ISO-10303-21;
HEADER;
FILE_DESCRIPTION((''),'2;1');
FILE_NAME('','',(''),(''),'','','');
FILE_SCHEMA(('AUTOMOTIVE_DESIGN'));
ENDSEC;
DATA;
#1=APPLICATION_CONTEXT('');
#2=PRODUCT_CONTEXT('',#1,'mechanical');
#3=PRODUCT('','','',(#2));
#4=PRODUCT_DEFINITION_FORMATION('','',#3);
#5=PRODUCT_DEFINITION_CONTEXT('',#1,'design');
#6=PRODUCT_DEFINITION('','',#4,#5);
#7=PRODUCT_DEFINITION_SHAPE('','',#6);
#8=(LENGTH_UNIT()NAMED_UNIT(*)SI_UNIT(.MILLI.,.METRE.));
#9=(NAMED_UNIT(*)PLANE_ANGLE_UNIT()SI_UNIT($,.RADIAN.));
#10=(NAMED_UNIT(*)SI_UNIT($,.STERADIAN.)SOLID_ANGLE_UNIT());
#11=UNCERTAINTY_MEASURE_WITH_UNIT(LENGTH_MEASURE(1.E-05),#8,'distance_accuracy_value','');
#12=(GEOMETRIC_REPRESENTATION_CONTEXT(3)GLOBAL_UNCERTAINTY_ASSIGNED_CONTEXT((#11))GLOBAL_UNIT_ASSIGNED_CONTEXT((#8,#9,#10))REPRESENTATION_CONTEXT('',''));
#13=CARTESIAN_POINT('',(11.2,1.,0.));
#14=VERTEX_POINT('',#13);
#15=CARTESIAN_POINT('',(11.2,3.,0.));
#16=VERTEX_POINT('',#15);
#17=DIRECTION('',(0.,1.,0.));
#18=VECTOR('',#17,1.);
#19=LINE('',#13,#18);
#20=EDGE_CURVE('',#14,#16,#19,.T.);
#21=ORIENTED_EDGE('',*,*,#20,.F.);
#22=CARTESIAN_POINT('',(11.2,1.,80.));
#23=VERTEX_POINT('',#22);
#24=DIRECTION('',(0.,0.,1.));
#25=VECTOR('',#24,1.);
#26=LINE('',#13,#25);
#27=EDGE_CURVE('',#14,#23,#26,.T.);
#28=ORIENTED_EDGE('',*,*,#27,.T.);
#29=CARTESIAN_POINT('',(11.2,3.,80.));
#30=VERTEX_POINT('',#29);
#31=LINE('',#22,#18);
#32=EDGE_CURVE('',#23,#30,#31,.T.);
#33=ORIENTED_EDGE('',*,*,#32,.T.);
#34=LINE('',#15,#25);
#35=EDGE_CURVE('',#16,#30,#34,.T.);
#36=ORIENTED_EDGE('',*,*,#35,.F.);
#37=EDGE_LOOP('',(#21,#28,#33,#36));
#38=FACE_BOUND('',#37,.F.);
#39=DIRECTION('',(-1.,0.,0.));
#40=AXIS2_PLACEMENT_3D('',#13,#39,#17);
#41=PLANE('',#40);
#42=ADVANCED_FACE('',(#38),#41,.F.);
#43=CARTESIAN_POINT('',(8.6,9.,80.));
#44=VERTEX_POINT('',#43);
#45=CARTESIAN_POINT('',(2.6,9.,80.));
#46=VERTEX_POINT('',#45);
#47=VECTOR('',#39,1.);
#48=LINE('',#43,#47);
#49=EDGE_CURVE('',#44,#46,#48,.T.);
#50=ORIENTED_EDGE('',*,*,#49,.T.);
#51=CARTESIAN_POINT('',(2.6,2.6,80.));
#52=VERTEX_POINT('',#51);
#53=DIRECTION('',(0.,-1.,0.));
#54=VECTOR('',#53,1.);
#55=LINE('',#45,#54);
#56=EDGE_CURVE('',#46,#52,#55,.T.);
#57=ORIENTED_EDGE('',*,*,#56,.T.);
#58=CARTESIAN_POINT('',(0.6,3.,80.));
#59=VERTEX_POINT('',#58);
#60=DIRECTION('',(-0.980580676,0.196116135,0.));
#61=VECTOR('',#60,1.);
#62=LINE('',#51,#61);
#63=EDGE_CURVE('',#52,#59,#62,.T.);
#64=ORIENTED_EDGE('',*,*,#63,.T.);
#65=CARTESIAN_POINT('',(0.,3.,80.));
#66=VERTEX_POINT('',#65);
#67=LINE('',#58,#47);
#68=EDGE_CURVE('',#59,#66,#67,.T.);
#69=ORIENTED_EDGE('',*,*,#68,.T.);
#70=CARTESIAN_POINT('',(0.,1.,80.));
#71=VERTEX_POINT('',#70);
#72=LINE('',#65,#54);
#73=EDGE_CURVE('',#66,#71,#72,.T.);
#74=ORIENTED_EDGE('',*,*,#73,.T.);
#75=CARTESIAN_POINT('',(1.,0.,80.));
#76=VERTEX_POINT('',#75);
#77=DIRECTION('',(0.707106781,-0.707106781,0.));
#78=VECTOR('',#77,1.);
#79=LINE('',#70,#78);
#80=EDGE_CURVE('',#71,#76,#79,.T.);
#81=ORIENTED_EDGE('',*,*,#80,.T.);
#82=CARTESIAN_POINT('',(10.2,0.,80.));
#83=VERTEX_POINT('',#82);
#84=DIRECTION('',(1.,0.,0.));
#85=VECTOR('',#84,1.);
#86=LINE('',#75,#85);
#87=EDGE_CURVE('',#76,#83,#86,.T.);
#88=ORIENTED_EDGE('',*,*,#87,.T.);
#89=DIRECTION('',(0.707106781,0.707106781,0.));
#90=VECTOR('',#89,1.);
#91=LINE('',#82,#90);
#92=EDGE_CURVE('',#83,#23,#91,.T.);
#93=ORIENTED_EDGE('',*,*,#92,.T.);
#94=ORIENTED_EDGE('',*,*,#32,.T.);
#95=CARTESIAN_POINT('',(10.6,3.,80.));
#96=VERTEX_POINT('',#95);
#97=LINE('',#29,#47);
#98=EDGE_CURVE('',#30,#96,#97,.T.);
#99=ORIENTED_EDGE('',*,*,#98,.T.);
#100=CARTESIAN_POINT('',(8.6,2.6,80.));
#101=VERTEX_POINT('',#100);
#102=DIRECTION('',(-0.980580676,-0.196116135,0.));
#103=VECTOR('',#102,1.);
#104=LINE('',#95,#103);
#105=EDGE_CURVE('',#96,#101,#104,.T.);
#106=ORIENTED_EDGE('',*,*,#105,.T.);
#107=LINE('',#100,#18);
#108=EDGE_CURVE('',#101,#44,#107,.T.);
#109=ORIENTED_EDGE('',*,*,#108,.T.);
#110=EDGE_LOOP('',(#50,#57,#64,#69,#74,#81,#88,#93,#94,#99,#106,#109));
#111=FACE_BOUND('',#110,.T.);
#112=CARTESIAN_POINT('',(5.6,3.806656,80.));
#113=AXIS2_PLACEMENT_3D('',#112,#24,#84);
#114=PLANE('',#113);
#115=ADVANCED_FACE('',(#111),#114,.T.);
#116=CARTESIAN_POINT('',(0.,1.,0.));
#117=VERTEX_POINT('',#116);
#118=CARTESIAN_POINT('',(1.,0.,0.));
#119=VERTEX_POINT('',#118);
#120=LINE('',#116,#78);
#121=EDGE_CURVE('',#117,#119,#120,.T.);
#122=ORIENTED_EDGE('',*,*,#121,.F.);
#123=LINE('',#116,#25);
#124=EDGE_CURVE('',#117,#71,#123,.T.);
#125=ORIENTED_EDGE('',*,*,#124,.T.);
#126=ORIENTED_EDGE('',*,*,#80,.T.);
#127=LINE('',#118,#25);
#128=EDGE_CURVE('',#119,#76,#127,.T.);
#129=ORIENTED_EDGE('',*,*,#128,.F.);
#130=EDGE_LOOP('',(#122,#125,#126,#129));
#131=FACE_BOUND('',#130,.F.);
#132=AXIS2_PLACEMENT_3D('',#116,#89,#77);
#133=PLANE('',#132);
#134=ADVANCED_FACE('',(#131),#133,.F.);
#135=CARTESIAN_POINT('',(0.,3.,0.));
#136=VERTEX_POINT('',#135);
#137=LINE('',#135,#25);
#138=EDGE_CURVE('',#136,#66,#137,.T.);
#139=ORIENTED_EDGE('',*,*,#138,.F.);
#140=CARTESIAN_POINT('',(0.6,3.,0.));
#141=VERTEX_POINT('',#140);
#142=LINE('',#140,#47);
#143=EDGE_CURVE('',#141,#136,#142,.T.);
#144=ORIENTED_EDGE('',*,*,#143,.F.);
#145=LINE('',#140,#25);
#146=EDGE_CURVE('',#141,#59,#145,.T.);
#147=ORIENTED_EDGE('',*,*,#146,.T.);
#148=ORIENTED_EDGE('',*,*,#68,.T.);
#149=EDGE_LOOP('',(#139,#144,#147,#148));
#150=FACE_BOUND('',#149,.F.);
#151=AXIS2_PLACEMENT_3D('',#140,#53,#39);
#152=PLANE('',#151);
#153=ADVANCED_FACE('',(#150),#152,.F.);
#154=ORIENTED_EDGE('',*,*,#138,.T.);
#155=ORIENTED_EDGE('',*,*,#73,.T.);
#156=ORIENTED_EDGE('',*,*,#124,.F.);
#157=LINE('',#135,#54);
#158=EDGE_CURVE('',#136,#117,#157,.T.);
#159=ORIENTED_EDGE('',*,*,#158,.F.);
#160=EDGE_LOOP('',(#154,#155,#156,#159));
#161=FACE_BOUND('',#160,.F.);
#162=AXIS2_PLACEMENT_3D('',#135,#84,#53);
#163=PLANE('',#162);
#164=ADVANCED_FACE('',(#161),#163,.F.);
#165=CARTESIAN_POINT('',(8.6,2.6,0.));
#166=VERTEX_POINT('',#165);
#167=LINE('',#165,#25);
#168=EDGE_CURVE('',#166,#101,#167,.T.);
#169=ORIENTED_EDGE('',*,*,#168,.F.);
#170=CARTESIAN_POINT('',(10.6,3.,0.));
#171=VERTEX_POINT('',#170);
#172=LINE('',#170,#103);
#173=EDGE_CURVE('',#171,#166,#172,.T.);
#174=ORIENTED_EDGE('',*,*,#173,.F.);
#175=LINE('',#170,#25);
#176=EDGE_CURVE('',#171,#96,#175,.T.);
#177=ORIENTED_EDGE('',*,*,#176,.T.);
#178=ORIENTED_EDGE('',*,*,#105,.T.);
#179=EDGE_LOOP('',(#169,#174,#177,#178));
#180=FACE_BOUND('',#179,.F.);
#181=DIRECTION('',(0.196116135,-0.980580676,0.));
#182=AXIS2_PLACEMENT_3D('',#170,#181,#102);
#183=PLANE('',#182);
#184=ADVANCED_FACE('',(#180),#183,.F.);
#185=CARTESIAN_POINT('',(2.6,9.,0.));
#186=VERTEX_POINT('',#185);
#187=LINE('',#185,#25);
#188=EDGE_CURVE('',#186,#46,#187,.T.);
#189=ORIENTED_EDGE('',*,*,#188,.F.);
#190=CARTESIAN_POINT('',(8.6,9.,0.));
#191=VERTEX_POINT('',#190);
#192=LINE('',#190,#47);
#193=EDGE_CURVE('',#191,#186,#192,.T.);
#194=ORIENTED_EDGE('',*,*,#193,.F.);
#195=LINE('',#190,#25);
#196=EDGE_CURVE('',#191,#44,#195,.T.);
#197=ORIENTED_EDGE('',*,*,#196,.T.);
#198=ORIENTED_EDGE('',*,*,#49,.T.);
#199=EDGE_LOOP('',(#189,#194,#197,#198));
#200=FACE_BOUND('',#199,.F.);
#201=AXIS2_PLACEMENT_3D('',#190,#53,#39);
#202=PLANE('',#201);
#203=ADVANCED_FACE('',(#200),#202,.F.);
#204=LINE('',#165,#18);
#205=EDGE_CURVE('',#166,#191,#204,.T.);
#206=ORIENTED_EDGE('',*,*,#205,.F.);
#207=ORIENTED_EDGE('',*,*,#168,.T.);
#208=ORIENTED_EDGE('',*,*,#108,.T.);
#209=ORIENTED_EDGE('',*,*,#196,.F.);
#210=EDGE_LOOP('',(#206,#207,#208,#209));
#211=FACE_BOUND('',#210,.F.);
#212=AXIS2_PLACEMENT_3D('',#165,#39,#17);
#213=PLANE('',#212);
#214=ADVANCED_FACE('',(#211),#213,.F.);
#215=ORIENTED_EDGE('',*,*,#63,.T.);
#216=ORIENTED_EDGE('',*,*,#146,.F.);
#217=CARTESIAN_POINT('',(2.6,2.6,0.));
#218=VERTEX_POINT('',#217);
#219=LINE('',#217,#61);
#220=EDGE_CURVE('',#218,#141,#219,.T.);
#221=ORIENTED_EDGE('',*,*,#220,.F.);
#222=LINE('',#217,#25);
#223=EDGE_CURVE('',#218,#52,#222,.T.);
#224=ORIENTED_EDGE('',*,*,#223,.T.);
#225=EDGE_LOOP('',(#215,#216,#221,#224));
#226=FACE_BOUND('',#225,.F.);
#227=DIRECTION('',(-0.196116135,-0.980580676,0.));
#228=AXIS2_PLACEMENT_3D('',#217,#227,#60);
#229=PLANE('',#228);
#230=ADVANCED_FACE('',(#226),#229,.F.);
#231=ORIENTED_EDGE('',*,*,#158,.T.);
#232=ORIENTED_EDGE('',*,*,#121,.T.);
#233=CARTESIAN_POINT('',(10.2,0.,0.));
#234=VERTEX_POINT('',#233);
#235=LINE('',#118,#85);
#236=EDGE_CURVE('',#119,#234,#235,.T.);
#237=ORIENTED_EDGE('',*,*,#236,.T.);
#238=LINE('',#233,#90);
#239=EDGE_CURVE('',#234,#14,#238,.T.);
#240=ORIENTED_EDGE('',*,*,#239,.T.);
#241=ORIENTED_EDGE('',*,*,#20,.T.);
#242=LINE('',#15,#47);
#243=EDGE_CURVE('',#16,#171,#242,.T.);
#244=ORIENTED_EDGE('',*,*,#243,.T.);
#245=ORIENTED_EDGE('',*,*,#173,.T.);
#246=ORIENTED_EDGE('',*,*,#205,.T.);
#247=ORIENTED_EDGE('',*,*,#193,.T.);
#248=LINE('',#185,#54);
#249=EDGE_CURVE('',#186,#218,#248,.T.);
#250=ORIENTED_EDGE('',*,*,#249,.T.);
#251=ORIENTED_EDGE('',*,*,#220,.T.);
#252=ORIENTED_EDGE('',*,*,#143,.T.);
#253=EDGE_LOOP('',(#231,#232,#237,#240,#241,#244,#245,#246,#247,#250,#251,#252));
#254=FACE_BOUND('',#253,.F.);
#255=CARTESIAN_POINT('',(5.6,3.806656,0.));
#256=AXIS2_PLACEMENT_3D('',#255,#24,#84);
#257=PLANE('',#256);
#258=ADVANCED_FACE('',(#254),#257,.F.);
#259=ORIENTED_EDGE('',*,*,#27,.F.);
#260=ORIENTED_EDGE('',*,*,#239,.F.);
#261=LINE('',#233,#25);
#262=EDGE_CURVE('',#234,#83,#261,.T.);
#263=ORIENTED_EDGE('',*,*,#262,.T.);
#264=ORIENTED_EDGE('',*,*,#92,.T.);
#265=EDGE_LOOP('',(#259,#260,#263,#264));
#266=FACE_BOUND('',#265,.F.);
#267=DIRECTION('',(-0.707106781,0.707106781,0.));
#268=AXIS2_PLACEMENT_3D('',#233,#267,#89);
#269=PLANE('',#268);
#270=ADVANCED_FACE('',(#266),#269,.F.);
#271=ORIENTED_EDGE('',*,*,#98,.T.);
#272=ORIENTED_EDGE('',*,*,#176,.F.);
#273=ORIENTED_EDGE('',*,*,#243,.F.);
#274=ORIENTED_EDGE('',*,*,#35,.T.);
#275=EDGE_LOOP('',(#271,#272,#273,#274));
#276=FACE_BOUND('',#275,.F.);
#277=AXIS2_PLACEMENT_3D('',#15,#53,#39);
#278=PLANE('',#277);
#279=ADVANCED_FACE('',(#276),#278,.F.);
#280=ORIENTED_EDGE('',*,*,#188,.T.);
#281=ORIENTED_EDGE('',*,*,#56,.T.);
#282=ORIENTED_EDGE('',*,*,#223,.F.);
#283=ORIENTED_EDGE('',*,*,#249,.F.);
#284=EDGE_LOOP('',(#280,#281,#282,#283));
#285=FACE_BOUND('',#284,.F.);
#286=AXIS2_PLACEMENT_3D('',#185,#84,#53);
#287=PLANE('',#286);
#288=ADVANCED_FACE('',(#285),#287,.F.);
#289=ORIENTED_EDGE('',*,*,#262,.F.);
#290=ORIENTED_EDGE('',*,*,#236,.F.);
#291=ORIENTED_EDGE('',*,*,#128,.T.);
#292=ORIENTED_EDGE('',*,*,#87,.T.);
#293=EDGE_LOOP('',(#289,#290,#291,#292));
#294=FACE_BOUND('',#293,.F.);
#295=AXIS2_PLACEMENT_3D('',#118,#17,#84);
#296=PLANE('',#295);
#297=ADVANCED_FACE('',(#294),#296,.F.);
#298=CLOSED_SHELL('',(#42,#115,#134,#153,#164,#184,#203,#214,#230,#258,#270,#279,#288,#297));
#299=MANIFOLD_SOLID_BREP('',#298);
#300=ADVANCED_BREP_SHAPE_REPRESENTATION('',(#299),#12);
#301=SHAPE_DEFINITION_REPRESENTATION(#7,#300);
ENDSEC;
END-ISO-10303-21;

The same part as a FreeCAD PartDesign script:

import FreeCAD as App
import Part
import Sketcher
from FreeCAD import Vector
Q = App.Units.Quantity


def add_polygon(sketch, points):
    """Adds a closed chain of lines whose ends are joined by coincident constraints."""
    first, n = sketch.GeometryCount, len(points)
    for a, b in zip(points, points[1:] + points[:1]):
        sketch.addGeometry(Part.LineSegment(App.Vector(*a, 0), App.Vector(*b, 0)), False)
    for i in range(n):
        sketch.addConstraint(Sketcher.Constraint("Coincident", first + i, 2, first + (i + 1) % n, 1))

doc = App.newDocument("Part")
body = doc.addObject("PartDesign::Body", "Body")

# Sketch on XY plane
sketch1 = body.newObject("Sketcher::SketchObject", "Sketch")
sketch1.AttachmentSupport = (doc.getObject("XY_Plane"), [""])
sketch1.MapMode = "FlatFace"
add_polygon(sketch1, [(0, 3), (0, 1), (1, 0), (10.2, 0), (11.2, 1), (11.2, 3), (10.6, 3), (8.6, 2.6), (8.6, 9), (2.6, 9), (2.6, 2.6), (0.6, 3)])  # lines 0-11
sketch1.addConstraint([
    Sketcher.Constraint("Vertical", 0),
    Sketcher.Constraint("Horizontal", 2),
    Sketcher.Constraint("Vertical", 4),
    Sketcher.Constraint("Horizontal", 5),
    Sketcher.Constraint("Vertical", 7),
    Sketcher.Constraint("Horizontal", 8),
    Sketcher.Constraint("Vertical", 9),
    Sketcher.Constraint("Horizontal", 11),
    Sketcher.Constraint("PointOnObject", 0, 2, -2),
    Sketcher.Constraint("PointOnObject", 1, 2, -1),
    Sketcher.Constraint("Perpendicular", 1, 3),
    Sketcher.Constraint("Horizontal", 0, 2, 3, 2),
    Sketcher.Constraint("Horizontal", 6, 2, 9, 2),
    Sketcher.Constraint("Horizontal", 5, 2, 10, 2),
    Sketcher.Constraint("Equal", 5, 11),
    Sketcher.Constraint("Equal", 1, 3),
    Sketcher.Constraint("Equal", 6, 10),
    Sketcher.Constraint("DistanceX", 8, 2, 8, 1, Q("6 mm")),
    Sketcher.Constraint("DistanceY", 0, 2, 0, 1, Q("2 mm")),
    Sketcher.Constraint("DistanceX", 2, 1, 2, 2, Q("9.2 mm")),
    Sketcher.Constraint("DistanceX", 5, 2, 5, 1, Q("0.6 mm")),
    Sketcher.Constraint("DistanceY", 7, 1, 7, 2, Q("6.4 mm")),
    Sketcher.Constraint("DistanceY", -1, 1, 0, 2, Q("1 mm")),
    Sketcher.Constraint("DistanceY", -1, 1, 7, 2, Q("9 mm")),
])
pad1 = body.newObject("PartDesign::Pad", "Pad")
pad1.Profile = sketch1
pad1.Length = 80

doc.recompute()
